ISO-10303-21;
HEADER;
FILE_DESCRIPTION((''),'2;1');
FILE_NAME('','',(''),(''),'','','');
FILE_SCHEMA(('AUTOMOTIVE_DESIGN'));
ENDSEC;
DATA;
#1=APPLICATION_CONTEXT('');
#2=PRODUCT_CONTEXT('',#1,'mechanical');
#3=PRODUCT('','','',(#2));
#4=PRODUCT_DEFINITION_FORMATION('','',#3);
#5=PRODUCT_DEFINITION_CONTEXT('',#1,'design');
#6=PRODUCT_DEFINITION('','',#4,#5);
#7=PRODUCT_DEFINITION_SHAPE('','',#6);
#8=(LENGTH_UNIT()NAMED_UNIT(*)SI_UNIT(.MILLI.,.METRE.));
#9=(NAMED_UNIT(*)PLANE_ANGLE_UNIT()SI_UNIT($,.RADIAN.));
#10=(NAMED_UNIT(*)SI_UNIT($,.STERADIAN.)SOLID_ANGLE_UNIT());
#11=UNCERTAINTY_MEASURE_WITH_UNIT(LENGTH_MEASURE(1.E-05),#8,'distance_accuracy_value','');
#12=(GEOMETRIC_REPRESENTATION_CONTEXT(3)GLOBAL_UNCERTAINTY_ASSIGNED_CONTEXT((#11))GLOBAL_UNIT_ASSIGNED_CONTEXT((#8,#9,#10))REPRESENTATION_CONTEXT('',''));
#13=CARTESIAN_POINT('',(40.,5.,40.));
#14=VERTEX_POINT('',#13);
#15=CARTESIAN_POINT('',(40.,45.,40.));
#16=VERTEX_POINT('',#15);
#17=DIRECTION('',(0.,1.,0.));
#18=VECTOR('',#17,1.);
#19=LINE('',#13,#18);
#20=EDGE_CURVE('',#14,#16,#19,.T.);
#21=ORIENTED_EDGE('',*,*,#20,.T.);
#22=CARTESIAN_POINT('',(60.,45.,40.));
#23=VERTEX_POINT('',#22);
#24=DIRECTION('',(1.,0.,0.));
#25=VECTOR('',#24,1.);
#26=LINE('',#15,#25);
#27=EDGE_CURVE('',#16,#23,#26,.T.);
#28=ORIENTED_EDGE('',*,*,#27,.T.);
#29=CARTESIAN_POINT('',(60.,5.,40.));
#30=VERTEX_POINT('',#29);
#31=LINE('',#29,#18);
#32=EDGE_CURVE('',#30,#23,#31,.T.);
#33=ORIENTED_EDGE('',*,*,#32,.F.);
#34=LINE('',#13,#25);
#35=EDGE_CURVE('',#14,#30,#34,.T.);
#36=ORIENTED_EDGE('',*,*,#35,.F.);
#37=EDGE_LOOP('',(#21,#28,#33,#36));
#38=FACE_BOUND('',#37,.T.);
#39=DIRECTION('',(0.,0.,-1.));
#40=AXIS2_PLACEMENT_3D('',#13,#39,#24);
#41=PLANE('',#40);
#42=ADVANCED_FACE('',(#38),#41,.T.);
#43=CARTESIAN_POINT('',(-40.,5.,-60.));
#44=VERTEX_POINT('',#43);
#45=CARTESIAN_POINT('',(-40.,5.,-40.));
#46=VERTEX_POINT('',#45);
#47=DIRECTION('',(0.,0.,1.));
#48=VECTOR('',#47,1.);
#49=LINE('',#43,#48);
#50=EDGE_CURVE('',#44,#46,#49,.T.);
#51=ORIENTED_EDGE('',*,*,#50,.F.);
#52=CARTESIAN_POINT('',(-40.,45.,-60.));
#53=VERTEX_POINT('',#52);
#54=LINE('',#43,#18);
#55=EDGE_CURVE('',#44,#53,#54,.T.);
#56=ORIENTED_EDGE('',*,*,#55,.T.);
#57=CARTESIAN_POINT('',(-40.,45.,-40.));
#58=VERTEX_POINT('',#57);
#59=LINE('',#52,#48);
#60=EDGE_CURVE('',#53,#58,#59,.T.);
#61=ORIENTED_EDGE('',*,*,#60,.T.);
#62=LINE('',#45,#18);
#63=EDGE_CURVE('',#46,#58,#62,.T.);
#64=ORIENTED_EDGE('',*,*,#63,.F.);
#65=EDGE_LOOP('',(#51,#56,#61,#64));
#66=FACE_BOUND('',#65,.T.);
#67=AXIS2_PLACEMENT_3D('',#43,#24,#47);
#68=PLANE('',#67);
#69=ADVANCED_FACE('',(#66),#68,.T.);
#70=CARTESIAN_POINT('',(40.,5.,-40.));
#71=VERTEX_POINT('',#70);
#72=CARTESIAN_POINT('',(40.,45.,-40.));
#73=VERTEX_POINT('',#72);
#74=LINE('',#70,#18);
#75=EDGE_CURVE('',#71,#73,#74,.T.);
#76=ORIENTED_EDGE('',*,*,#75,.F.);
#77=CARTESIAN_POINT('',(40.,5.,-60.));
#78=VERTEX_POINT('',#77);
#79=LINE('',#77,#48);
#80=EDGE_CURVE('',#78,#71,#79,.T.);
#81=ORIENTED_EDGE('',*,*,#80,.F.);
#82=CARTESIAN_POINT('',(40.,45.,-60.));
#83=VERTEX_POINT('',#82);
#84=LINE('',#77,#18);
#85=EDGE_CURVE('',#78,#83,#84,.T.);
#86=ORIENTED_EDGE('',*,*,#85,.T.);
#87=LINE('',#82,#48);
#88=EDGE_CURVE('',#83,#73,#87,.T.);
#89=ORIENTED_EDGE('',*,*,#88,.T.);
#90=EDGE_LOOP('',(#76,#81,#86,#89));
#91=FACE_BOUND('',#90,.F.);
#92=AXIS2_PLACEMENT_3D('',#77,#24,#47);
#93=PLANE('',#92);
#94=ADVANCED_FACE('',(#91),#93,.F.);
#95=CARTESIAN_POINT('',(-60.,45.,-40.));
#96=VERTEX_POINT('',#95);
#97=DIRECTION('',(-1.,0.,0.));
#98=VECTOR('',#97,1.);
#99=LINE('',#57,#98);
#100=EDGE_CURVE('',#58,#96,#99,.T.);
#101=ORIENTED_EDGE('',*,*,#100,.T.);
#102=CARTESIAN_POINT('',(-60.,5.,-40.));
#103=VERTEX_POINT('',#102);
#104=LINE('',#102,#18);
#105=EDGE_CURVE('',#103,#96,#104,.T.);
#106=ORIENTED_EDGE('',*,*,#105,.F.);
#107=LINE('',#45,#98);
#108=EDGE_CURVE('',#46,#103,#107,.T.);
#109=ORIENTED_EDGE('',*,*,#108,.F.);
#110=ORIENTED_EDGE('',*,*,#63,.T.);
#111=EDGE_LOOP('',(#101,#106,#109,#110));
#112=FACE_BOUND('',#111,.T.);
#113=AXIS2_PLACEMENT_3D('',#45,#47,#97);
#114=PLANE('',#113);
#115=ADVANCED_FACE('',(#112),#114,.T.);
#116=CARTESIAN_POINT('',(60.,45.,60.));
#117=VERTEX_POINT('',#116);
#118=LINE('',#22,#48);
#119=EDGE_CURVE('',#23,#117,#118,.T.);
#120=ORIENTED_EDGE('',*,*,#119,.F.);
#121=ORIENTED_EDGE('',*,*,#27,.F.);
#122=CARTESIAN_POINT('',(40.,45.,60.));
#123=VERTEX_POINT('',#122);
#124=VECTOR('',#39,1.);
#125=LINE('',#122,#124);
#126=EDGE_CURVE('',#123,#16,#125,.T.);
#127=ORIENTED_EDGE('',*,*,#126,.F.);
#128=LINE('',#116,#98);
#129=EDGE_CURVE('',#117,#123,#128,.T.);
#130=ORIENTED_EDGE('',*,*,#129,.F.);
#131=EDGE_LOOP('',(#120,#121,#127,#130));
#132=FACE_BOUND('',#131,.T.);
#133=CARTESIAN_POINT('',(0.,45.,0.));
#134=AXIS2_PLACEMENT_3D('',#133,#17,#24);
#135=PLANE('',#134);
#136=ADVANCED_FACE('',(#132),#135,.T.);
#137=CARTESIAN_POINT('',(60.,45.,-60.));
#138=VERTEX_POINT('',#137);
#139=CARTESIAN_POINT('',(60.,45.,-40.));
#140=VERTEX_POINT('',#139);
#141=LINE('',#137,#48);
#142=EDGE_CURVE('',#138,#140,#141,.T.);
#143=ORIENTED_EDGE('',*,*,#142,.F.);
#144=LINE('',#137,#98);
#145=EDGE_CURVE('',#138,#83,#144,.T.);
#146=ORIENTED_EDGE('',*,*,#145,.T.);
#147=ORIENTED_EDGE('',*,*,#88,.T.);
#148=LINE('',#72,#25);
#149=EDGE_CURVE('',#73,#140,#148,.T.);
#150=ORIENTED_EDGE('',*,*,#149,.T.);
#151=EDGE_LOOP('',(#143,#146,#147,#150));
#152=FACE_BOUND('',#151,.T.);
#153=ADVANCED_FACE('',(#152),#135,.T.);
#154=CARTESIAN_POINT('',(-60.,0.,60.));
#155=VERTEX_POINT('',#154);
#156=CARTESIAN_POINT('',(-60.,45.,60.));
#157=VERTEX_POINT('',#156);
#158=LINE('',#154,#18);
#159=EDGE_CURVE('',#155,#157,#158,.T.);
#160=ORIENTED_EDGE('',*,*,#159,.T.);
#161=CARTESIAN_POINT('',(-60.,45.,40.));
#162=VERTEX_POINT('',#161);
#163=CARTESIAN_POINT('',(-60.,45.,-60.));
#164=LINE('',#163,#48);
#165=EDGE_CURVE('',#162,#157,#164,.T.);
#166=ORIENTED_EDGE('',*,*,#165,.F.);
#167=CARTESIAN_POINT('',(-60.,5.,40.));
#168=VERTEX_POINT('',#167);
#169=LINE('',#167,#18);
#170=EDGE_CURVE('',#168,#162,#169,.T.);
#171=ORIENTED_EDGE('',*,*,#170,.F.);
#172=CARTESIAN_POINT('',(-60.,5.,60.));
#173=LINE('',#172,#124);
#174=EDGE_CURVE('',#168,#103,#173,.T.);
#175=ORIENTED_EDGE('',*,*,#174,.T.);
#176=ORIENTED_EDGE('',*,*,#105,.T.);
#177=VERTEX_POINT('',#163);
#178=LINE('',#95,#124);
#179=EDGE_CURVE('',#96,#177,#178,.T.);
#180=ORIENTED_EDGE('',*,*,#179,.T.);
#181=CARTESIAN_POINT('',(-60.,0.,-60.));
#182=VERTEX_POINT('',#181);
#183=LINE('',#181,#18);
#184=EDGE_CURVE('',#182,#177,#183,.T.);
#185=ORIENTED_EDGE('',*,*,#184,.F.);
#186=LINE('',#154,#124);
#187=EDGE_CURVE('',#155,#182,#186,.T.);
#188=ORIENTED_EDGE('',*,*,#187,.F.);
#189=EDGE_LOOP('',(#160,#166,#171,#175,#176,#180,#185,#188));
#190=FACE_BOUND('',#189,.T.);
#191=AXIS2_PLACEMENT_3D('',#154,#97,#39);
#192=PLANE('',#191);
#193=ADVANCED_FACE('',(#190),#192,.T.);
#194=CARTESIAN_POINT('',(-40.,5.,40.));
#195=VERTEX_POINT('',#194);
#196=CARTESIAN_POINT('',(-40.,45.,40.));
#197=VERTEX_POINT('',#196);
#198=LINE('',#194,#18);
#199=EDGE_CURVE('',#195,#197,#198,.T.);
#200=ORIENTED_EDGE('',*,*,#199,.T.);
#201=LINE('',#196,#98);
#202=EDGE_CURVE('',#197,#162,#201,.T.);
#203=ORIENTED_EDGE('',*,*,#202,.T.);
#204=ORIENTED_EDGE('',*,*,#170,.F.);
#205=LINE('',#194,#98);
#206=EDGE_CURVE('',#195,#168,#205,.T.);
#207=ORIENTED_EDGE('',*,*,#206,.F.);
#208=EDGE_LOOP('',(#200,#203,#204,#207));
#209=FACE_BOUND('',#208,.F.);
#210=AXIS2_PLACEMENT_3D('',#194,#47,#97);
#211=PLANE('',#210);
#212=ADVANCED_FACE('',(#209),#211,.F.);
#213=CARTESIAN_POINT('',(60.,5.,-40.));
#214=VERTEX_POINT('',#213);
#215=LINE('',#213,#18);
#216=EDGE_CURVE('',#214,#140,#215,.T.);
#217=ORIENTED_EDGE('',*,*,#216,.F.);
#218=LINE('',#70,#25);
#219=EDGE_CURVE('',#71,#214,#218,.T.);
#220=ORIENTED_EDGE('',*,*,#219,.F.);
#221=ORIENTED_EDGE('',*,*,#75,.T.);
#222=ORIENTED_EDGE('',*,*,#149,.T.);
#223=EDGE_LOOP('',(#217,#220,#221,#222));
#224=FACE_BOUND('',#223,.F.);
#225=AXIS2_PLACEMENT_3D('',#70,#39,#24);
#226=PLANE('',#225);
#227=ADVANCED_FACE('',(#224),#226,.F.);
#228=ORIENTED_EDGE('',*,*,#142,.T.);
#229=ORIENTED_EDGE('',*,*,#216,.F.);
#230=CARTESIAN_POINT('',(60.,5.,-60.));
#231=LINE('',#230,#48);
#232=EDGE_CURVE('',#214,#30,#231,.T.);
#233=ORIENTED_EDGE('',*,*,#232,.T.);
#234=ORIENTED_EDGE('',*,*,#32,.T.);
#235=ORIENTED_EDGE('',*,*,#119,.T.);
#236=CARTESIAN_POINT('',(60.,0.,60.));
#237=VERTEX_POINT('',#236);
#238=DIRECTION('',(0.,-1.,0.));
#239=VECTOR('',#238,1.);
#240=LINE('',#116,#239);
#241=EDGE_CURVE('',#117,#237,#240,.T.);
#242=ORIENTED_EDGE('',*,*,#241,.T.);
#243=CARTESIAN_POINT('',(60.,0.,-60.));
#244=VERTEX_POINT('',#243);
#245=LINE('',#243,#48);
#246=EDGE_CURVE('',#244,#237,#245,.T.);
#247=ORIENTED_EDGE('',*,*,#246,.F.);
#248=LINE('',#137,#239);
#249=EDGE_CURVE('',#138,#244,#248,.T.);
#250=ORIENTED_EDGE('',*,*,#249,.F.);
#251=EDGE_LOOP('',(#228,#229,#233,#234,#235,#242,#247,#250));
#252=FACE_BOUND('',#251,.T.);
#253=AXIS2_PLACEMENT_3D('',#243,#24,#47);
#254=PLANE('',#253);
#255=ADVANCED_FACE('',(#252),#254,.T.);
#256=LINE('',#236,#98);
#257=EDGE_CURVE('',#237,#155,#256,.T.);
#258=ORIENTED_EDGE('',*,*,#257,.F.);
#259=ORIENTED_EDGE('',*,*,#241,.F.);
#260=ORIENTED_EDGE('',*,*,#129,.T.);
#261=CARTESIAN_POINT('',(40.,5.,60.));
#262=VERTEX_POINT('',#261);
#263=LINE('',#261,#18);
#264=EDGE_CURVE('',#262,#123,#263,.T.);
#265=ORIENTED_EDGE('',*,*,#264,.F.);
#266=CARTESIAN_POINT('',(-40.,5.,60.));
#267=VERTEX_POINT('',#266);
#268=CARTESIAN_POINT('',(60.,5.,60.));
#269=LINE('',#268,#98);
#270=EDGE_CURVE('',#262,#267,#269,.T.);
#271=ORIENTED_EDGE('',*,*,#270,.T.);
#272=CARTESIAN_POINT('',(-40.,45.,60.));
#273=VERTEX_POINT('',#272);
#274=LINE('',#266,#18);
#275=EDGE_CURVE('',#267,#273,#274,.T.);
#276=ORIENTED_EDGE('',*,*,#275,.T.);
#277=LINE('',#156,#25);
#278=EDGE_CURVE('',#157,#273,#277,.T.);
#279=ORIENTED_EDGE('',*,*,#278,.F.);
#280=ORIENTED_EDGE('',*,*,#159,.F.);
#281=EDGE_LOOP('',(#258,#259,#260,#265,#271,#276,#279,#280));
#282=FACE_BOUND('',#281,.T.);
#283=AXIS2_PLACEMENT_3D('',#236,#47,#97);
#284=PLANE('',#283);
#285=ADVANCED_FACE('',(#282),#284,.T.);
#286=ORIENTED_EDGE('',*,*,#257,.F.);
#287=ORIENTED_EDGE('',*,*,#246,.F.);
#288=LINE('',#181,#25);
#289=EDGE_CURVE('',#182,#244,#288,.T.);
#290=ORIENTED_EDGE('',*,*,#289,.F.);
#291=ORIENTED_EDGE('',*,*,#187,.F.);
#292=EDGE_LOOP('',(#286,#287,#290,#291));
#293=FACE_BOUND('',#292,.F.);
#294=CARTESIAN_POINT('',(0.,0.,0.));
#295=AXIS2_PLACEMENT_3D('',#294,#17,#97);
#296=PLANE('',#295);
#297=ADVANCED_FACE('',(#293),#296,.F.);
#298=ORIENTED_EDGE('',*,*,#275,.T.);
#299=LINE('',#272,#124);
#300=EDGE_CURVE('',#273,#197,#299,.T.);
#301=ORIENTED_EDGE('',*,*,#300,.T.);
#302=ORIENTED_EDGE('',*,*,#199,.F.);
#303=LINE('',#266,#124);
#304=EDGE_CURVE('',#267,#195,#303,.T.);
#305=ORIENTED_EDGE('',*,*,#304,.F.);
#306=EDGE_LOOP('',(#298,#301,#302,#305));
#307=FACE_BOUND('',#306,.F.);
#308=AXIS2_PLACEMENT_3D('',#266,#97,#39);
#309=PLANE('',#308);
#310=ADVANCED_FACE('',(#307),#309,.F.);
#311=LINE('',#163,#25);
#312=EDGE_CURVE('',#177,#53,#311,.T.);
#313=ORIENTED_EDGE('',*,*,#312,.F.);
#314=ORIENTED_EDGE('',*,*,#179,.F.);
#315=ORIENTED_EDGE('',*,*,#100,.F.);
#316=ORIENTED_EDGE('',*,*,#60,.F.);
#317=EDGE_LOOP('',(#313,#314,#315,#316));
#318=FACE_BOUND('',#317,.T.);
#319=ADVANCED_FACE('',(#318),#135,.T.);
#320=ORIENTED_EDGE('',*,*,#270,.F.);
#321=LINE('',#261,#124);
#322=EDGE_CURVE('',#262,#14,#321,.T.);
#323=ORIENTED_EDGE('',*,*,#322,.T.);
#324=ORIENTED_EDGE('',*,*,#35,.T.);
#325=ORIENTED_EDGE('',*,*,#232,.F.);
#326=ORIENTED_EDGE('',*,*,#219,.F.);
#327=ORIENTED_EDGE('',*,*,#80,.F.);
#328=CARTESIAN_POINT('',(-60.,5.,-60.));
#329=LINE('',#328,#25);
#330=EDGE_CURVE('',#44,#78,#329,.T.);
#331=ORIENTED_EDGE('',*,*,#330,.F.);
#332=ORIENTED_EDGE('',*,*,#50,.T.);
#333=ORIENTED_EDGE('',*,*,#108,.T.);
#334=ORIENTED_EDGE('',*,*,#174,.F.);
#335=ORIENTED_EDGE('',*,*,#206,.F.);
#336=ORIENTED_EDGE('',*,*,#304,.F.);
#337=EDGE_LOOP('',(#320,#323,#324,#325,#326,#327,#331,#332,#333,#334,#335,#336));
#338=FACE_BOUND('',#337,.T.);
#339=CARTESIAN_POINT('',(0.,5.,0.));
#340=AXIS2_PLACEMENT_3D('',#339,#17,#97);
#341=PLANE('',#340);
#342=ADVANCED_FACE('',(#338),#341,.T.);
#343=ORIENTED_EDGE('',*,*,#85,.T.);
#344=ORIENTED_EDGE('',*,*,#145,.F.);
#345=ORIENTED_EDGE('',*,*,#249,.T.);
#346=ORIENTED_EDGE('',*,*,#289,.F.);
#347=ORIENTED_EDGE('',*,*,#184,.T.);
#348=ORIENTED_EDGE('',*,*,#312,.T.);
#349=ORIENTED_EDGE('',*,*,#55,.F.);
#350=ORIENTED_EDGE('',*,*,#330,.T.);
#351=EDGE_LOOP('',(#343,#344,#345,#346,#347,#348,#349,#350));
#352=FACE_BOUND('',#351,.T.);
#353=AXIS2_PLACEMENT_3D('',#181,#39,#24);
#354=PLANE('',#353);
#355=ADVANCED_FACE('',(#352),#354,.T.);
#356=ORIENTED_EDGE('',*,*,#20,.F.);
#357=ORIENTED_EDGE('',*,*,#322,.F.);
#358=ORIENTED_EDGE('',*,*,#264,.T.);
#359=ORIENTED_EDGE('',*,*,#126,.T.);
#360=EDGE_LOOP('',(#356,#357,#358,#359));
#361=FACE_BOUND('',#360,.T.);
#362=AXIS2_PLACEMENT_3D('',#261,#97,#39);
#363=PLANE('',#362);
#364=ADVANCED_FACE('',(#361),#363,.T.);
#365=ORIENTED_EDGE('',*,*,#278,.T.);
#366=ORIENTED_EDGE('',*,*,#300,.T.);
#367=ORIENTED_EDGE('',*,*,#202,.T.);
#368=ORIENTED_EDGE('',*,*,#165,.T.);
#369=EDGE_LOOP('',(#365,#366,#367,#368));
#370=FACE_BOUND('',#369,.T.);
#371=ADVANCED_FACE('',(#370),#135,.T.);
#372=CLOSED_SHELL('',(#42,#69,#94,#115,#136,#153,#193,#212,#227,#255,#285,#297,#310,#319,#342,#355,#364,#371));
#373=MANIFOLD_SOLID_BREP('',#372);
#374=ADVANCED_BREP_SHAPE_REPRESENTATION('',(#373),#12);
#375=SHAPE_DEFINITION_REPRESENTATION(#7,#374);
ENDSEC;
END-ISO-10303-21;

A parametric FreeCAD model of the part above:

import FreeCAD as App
import Part
import Sketcher


def add_polygon(sketch, points):
    """Adds a closed chain of lines whose ends are joined by coincident constraints."""
    first, n = sketch.GeometryCount, len(points)
    for a, b in zip(points, points[1:] + points[:1]):
        sketch.addGeometry(Part.LineSegment(App.Vector(*a, 0), App.Vector(*b, 0)), False)
    for i in range(n):
        sketch.addConstraint(Sketcher.Constraint("Coincident", first + i, 2, first + (i + 1) % n, 1))

doc = App.newDocument("Part")
body = doc.addObject("PartDesign::Body", "Body")

# Sketch on XZ plane
sketch1 = body.newObject("Sketcher::SketchObject", "Sketch")
sketch1.AttachmentSupport = (doc.getObject("XZ_Plane"), [""])
sketch1.MapMode = "FlatFace"
add_polygon(sketch1, [(60, -60), (-60, -60), (-60, 60), (60, 60)])  # lines 0-3
sketch1.addConstraint(Sketcher.Constraint("Horizontal", 0))
sketch1.addConstraint(Sketcher.Constraint("Vertical", 1))
sketch1.addConstraint(Sketcher.Constraint("Horizontal", 2))
sketch1.addConstraint(Sketcher.Constraint("Vertical", 3))
sketch1.addConstraint(Sketcher.Constraint("Symmetric", 0, 2, 2, 2, -1, 1))
sketch1.addConstraint(Sketcher.Constraint("Equal", 2, 1))
sketch1.addConstraint(Sketcher.Constraint("DistanceX", 0, 2, 0, 1, 120.0))
pad1 = body.newObject("PartDesign::Pad", "Pad")
pad1.Profile = sketch1
pad1.Length = 5
pad1.Reversed = True

# Sketch on XZ plane
sketch2 = body.newObject("Sketcher::SketchObject", "Sketch001")
sketch2.AttachmentSupport = (doc.getObject("XZ_Plane"), [""])
sketch2.MapMode = "FlatFace"
sketch2.AttachmentOffset = App.Placement(App.Vector(0, 0, -5), App.Rotation())
add_polygon(sketch2, [(-60, -40), (-40, -40), (-40, -60), (-60, -60)])  # lines 0-3
add_polygon(sketch2, [(-40, 40), (-60, 40), (-60, 60), (-40, 60)])  # lines 4-7
add_polygon(sketch2, [(60, -60), (40, -60), (40, -40), (60, -40)])  # lines 8-11
add_polygon(sketch2, [(40, 40), (40, 60), (60, 60), (60, 40)])  # lines 12-15
sketch2.addConstraint(Sketcher.Constraint("Horizontal", 0))
sketch2.addConstraint(Sketcher.Constraint("Vertical", 1))
sketch2.addConstraint(Sketcher.Constraint("Horizontal", 2))
sketch2.addConstraint(Sketcher.Constraint("Vertical", 3))
sketch2.addConstraint(Sketcher.Constraint("Horizontal", 4))
sketch2.addConstraint(Sketcher.Constraint("Vertical", 5))
sketch2.addConstraint(Sketcher.Constraint("Horizontal", 6))
sketch2.addConstraint(Sketcher.Constraint("Vertical", 7))
sketch2.addConstraint(Sketcher.Constraint("Horizontal", 8))
sketch2.addConstraint(Sketcher.Constraint("Vertical", 9))
sketch2.addConstraint(Sketcher.Constraint("Horizontal", 10))
sketch2.addConstraint(Sketcher.Constraint("Vertical", 11))
sketch2.addConstraint(Sketcher.Constraint("Vertical", 12))
sketch2.addConstraint(Sketcher.Constraint("Horizontal", 13))
sketch2.addConstraint(Sketcher.Constraint("Vertical", 14))
sketch2.addConstraint(Sketcher.Constraint("Horizontal", 15))
sketch2.addConstraint(Sketcher.Constraint("Symmetric", 6, 2, 8, 2, -1, 1))
sketch2.addConstraint(Sketcher.Constraint("Symmetric", 4, 2, 10, 2, -1, 1))
sketch2.addConstraint(Sketcher.Constraint("Symmetric", 1, 2, 12, 2, -1, 1))
sketch2.addConstraint(Sketcher.Constraint("Symmetric", 3, 2, 14, 2, -1, 1))
sketch2.addConstraint(Sketcher.Constraint("Symmetric", 1, 2, 8, 2, -2))
sketch2.addConstraint(Sketcher.Constraint("Symmetric", 3, 2, 10, 2, -2))
sketch2.addConstraint(Sketcher.Constraint("Equal", 15, 1))
sketch2.addConstraint(Sketcher.Constraint("DistanceX", 0, 1, 0, 2, 20.0))
sketch2.addConstraint(Sketcher.Constraint("DistanceX", 0, 2, -1, 1, 40.0))
sketch2.addConstraint(Sketcher.Constraint("DistanceY", 0, 2, -1, 1, 40.0))
pad2 = body.newObject("PartDesign::Pad", "Pad001")
pad2.Profile = sketch2
pad2.Length = 40
pad2.Reversed = True

doc.recompute()
